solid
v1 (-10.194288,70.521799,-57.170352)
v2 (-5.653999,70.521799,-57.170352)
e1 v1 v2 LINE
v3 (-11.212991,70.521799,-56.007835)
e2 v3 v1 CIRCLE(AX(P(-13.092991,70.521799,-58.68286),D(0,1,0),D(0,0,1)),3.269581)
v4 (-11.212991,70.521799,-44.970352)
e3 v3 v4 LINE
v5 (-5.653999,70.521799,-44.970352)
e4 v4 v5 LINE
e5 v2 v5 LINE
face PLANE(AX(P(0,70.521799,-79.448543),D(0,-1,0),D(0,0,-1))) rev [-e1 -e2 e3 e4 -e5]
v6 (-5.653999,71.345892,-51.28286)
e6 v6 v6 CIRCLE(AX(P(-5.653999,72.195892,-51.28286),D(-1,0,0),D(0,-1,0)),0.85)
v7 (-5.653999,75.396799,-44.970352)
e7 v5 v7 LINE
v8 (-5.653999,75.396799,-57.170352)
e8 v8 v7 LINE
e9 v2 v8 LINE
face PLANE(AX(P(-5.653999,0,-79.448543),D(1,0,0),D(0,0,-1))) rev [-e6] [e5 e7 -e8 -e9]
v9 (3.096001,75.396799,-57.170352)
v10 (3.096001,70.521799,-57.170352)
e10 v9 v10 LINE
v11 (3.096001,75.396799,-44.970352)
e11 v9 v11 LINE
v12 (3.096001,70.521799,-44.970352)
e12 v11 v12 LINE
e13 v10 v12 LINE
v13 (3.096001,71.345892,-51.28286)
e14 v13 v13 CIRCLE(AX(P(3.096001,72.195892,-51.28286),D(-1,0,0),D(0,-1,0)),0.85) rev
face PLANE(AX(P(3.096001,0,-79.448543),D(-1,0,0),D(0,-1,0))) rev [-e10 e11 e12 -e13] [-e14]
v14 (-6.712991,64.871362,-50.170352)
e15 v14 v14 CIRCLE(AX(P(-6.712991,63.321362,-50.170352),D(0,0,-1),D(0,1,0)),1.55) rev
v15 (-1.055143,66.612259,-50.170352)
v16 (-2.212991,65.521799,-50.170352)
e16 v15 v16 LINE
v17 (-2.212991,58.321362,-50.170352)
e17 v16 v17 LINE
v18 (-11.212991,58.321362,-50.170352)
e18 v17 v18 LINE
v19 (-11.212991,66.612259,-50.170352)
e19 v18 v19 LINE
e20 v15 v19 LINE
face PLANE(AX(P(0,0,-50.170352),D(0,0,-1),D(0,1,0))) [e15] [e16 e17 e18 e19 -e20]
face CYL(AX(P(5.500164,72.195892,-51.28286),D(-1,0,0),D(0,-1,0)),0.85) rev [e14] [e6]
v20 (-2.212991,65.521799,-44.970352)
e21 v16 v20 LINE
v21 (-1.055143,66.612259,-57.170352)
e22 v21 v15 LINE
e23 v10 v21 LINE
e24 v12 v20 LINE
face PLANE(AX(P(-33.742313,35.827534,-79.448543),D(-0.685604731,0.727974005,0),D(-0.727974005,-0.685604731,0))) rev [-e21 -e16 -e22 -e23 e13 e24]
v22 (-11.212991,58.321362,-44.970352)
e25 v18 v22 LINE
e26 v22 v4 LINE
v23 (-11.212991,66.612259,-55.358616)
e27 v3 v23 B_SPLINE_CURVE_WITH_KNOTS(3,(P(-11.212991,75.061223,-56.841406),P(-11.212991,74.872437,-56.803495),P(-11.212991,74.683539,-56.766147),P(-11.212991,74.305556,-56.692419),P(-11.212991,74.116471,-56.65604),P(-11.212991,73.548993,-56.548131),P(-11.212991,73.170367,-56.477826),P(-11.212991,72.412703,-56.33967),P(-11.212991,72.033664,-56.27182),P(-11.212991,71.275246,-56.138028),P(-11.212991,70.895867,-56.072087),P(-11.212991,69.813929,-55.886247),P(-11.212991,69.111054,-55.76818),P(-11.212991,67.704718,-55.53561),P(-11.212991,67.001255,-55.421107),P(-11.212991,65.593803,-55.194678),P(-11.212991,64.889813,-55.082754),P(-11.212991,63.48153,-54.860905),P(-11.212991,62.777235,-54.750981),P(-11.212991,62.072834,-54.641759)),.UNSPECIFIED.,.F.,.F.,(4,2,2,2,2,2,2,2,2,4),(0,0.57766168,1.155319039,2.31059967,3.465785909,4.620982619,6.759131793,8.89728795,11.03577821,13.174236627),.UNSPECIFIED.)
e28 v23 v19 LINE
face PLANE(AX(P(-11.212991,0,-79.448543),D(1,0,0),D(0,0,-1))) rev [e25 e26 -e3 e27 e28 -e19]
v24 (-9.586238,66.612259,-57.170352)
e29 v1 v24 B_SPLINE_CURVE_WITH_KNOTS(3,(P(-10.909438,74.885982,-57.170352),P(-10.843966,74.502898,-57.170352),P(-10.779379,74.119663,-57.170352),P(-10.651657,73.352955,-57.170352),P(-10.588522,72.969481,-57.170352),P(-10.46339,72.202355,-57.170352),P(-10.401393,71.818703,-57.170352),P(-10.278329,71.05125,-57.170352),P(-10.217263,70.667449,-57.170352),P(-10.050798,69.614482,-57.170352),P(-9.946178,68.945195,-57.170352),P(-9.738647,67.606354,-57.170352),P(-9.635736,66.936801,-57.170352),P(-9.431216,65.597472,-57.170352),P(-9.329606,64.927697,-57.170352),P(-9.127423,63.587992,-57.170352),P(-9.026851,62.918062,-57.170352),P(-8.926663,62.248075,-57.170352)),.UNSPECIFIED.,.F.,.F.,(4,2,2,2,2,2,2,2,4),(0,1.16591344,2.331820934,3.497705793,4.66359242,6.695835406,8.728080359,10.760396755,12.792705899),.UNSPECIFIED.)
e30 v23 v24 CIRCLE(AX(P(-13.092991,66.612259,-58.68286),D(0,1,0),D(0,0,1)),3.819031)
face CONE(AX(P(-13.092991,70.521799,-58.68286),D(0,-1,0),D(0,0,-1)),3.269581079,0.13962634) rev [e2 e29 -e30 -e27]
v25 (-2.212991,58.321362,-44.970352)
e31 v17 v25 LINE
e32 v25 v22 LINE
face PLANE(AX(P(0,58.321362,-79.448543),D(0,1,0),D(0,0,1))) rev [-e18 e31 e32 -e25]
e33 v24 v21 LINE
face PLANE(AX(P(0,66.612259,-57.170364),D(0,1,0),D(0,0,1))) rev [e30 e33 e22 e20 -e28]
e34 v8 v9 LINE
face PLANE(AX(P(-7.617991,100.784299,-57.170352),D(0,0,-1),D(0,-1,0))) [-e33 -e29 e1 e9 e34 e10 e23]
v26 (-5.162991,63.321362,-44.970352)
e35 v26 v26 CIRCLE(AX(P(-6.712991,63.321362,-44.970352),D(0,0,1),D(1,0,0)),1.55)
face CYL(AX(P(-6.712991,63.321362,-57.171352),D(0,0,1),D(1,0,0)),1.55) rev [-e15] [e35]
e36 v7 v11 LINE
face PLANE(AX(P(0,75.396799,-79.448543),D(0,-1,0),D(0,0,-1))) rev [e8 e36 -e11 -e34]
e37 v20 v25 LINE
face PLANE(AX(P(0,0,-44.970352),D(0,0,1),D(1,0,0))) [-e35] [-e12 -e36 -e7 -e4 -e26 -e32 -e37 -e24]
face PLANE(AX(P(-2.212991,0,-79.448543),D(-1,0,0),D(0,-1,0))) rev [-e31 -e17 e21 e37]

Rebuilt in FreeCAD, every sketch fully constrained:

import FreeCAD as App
import Part
import Sketcher
Q = App.Units.Quantity

doc = App.newDocument("Part")
body = doc.addObject("PartDesign::Body", "Body")

# Sketch on XY plane
sketch1 = doc.addObject("Sketcher::SketchObject", "Sketch")
body.addObject(sketch1)
sketch1.AttachmentSupport = (doc.XY_Plane, [""])
sketch1.MapMode = "FlatFace"
sketch1.AttachmentOffset = App.Placement(App.Vector(0, 0, -44.970352), App.Rotation())
sketch1.addGeometry([
    Part.LineSegment(App.Vector(-11.2, 70.5, 0), App.Vector(-11.2, 58.3, 0)),  # 0
    Part.LineSegment(App.Vector(-11.2, 58.3, 0), App.Vector(-2.2, 58.3, 0)),  # 1
    Part.LineSegment(App.Vector(-2.2, 58.3, 0), App.Vector(-2.2, 65.5, 0)),  # 2
    Part.LineSegment(App.Vector(-2.2, 65.5, 0), App.Vector(3.1, 70.5, 0)),  # 3
    Part.LineSegment(App.Vector(3.1, 70.5, 0), App.Vector(3.1, 75.4, 0)),  # 4
    Part.LineSegment(App.Vector(3.1, 75.4, 0), App.Vector(-5.7, 75.4, 0)),  # 5
    Part.LineSegment(App.Vector(-5.7, 75.4, 0), App.Vector(-5.7, 70.5, 0)),  # 6
    Part.LineSegment(App.Vector(-5.7, 70.5, 0), App.Vector(-11.2, 70.5, 0)),  # 7
], False)
sketch1.addConstraint([
    Sketcher.Constraint("Coincident", 0, 2, 1, 1),
    Sketcher.Constraint("Coincident", 1, 2, 2, 1),
    Sketcher.Constraint("Coincident", 2, 2, 3, 1),
    Sketcher.Constraint("Coincident", 3, 2, 4, 1),
    Sketcher.Constraint("Coincident", 4, 2, 5, 1),
    Sketcher.Constraint("Coincident", 5, 2, 6, 1),
    Sketcher.Constraint("Coincident", 6, 2, 7, 1),
    Sketcher.Constraint("Coincident", 7, 2, 0, 1),
    Sketcher.Constraint("Vertical", 0),
    Sketcher.Constraint("Horizontal", 1),
    Sketcher.Constraint("Vertical", 2),
    Sketcher.Constraint("Vertical", 4),
    Sketcher.Constraint("Horizontal", 5),
    Sketcher.Constraint("Vertical", 6),
    Sketcher.Constraint("Horizontal", 7),
    Sketcher.Constraint("Horizontal", 3, 2, 6, 2),
    Sketcher.Constraint("DistanceX", 1, 1, 1, 2, 9.0),
    Sketcher.Constraint("DistanceY", 2, 2, 3, 2, 5.0),
    Sketcher.Constraint("DistanceX", 5, 2, 5, 1, 8.75),
    Sketcher.Constraint("DistanceY", 4, 1, 4, 2, 4.875),
    Sketcher.Constraint("DistanceX", -1, 1, 3, 2, 3.096001),
    Sketcher.Constraint("DistanceX", 7, 2, 7, 1, 5.558992),
    Sketcher.Constraint("DistanceY", -1, 1, 2, 2, 65.521799),
    Sketcher.Constraint("DistanceY", 0, 2, 0, 1, 12.200437),
])
pad1 = doc.addObject("PartDesign::Pad", "Pad")
body.addObject(pad1)
pad1.Profile = sketch1
pad1.Length = 12.2
pad1.Reversed = True

# Sketch on YZ plane
sketch2 = doc.addObject("Sketcher::SketchObject", "Sketch001")
body.addObject(sketch2)
sketch2.AttachmentSupport = (doc.YZ_Plane, [""])
sketch2.MapMode = "FlatFace"
sketch2.AttachmentOffset = App.Placement(App.Vector(0, 0, -5.653999), App.Rotation())
sketch2.addGeometry(Part.Circle(App.Vector(72.2, -51.3, 0), App.Vector(0, 0, 1), 0.8), False)
sketch2.addConstraint([
    Sketcher.Constraint("Diameter", 0, 1.7),
    Sketcher.Constraint("DistanceY", 0, 3, -1, 1, 51.28286),
    Sketcher.Constraint("DistanceX", -1, 1, 0, 3, 72.195892),
])
pocket1 = doc.addObject("PartDesign::Pocket", "Pocket")
body.addObject(pocket1)
pocket1.Profile = sketch2
pocket1.Length = 8.75
pocket1.Reversed = True

# Sketch on XY plane
sketch3 = doc.addObject("Sketcher::SketchObject", "Sketch002")
body.addObject(sketch3)
sketch3.AttachmentSupport = (doc.XY_Plane, [""])
sketch3.MapMode = "FlatFace"
sketch3.AttachmentOffset = App.Placement(App.Vector(0, 0, -44.970352), App.Rotation())
sketch3.addGeometry(Part.Circle(App.Vector(-6.7, 63.3, 0), App.Vector(0, 0, 1), 1.6), False)
sketch3.addConstraint([
    Sketcher.Constraint("Diameter", 0, 3.1),
    Sketcher.Constraint("DistanceX", 0, 3, -1, 1, 6.712991),
    Sketcher.Constraint("DistanceY", -1, 1, 0, 3, 63.321362),
])
pocket2 = doc.addObject("PartDesign::Pocket", "Pocket001")
body.addObject(pocket2)
pocket2.Profile = sketch3
pocket2.Type = "UpToFirst"

# Sketch on XY plane
sketch4 = doc.addObject("Sketcher::SketchObject", "Sketch003")
body.addObject(sketch4)
sketch4.AttachmentSupport = (doc.XY_Plane, [""])
sketch4.MapMode = "FlatFace"
sketch4.AttachmentOffset = App.Placement(App.Vector(0, 0, -57.170352), App.Rotation())
sketch4.addGeometry([
    Part.LineSegment(App.Vector(-11.2, 66.6, 0), App.Vector(-1.1, 66.6, 0)),  # 0
    Part.LineSegment(App.Vector(-1.1, 66.6, 0), App.Vector(-2.2, 65.5, 0)),  # 1
    Part.LineSegment(App.Vector(-2.2, 65.5, 0), App.Vector(-2.2, 58.3, 0)),  # 2
    Part.LineSegment(App.Vector(-2.2, 58.3, 0), App.Vector(-11.2, 58.3, 0)),  # 3
    Part.LineSegment(App.Vector(-11.2, 58.3, 0), App.Vector(-11.2, 66.6, 0)),  # 4
    Part.Circle(App.Vector(-6.7, 63.3, 0), App.Vector(0, 0, 1), 1.6),  # 5
], False)
sketch4.addConstraint([
    Sketcher.Constraint("Coincident", 0, 2, 1, 1),
    Sketcher.Constraint("Coincident", 1, 2, 2, 1),
    Sketcher.Constraint("Coincident", 2, 2, 3, 1),
    Sketcher.Constraint("Coincident", 3, 2, 4, 1),
    Sketcher.Constraint("Coincident", 4, 2, 0, 1),
    Sketcher.Constraint("Horizontal", 0),
    Sketcher.Constraint("Vertical", 2),
    Sketcher.Constraint("Horizontal", 3),
    Sketcher.Constraint("Vertical", 4),
    Sketcher.Constraint("Diameter", 5, 3.1),
    Sketcher.Constraint("DistanceX", 3, 2, 3, 1, 9.0),
    Sketcher.Constraint("DistanceY", 2, 2, 5, 3, 5.0),
    Sketcher.Constraint("DistanceX", 5, 3, 1, 2, 4.5),
    Sketcher.Constraint("DistanceX", 0, 1, 0, 2, 10.157848),
    Sketcher.Constraint("DistanceY", -1, 1, 1, 2, 65.521799),
    Sketcher.Constraint("DistanceY", 2, 2, 2, 1, 7.200437),
    Sketcher.Constraint("DistanceY", 4, 1, 4, 2, 8.290897),
    Sketcher.Constraint("DistanceX", 5, 3, -1, 1, 6.712991),
])
pocket3 = doc.addObject("PartDesign::Pocket", "Pocket002")
body.addObject(pocket3)
pocket3.Profile = sketch4
pocket3.Type = "TwoLengths"
pocket3.Length = 1
pocket3.Length2 = 7

# Sketch on XY plane
sketch5 = doc.addObject("Sketcher::SketchObject", "Sketch004")
body.addObject(sketch5)
sketch5.AttachmentSupport = (doc.XY_Plane, [""])
sketch5.MapMode = "FlatFace"
sketch5.AttachmentOffset = App.Placement(App.Vector(0, 0, -58.68286), App.Rotation())
sketch5.addGeometry([
    Part.LineSegment(App.Vector(-11.2, 66.6, 0), App.Vector(-11.2, 70.5, 0)),
    Part.LineSegment(App.Vector(-11.2, 70.5, 0), App.Vector(-9.8, 70.5, 0)),
    Part.LineSegment(App.Vector(-9.8, 70.5, 0), App.Vector(-9.3, 66.6, 0)),
    Part.LineSegment(App.Vector(-9.3, 66.6, 0), App.Vector(-11.2, 66.6, 0)),
], False)
sketch5.addGeometry(Part.LineSegment(App.Vector(-13.1, 70.5, 0), App.Vector(-13.1, 66.6, 0)), True)  # axis
sketch5.addConstraint([
    Sketcher.Constraint("Coincident", 0, 2, 1, 1),
    Sketcher.Constraint("Coincident", 1, 2, 2, 1),
    Sketcher.Constraint("Coincident", 2, 2, 3, 1),
    Sketcher.Constraint("Coincident", 3, 2, 0, 1),
    Sketcher.Constraint("Vertical", 0),
    Sketcher.Constraint("Horizontal", 1),
    Sketcher.Constraint("Horizontal", 3),
    Sketcher.Constraint("Vertical", 4),
    Sketcher.Constraint("Horizontal", 1, 2, 4, 1),
    Sketcher.Constraint("Horizontal", 3, 2, 4, 2),
    Sketcher.Constraint("Angle", 2, Q("-82 deg")),
    Sketcher.Constraint("DistanceX", 4, 1, 0, 2, 1.88),
    Sketcher.Constraint("DistanceX", 1, 1, 1, 2, 1.389581),
    Sketcher.Constraint("DistanceX", 3, 2, 3, 1, 1.939031),
    Sketcher.Constraint("DistanceY", -1, 1, 0, 2, 70.521799),
    Sketcher.Constraint("DistanceX", 0, 2, -1, 1, 11.212991),
])
groove = doc.addObject("PartDesign::Groove", "Groove")
body.addObject(groove)
groove.Profile = sketch5
groove.ReferenceAxis = (sketch5, ["Axis0"])
groove.Angle = 360

doc.recompute()
